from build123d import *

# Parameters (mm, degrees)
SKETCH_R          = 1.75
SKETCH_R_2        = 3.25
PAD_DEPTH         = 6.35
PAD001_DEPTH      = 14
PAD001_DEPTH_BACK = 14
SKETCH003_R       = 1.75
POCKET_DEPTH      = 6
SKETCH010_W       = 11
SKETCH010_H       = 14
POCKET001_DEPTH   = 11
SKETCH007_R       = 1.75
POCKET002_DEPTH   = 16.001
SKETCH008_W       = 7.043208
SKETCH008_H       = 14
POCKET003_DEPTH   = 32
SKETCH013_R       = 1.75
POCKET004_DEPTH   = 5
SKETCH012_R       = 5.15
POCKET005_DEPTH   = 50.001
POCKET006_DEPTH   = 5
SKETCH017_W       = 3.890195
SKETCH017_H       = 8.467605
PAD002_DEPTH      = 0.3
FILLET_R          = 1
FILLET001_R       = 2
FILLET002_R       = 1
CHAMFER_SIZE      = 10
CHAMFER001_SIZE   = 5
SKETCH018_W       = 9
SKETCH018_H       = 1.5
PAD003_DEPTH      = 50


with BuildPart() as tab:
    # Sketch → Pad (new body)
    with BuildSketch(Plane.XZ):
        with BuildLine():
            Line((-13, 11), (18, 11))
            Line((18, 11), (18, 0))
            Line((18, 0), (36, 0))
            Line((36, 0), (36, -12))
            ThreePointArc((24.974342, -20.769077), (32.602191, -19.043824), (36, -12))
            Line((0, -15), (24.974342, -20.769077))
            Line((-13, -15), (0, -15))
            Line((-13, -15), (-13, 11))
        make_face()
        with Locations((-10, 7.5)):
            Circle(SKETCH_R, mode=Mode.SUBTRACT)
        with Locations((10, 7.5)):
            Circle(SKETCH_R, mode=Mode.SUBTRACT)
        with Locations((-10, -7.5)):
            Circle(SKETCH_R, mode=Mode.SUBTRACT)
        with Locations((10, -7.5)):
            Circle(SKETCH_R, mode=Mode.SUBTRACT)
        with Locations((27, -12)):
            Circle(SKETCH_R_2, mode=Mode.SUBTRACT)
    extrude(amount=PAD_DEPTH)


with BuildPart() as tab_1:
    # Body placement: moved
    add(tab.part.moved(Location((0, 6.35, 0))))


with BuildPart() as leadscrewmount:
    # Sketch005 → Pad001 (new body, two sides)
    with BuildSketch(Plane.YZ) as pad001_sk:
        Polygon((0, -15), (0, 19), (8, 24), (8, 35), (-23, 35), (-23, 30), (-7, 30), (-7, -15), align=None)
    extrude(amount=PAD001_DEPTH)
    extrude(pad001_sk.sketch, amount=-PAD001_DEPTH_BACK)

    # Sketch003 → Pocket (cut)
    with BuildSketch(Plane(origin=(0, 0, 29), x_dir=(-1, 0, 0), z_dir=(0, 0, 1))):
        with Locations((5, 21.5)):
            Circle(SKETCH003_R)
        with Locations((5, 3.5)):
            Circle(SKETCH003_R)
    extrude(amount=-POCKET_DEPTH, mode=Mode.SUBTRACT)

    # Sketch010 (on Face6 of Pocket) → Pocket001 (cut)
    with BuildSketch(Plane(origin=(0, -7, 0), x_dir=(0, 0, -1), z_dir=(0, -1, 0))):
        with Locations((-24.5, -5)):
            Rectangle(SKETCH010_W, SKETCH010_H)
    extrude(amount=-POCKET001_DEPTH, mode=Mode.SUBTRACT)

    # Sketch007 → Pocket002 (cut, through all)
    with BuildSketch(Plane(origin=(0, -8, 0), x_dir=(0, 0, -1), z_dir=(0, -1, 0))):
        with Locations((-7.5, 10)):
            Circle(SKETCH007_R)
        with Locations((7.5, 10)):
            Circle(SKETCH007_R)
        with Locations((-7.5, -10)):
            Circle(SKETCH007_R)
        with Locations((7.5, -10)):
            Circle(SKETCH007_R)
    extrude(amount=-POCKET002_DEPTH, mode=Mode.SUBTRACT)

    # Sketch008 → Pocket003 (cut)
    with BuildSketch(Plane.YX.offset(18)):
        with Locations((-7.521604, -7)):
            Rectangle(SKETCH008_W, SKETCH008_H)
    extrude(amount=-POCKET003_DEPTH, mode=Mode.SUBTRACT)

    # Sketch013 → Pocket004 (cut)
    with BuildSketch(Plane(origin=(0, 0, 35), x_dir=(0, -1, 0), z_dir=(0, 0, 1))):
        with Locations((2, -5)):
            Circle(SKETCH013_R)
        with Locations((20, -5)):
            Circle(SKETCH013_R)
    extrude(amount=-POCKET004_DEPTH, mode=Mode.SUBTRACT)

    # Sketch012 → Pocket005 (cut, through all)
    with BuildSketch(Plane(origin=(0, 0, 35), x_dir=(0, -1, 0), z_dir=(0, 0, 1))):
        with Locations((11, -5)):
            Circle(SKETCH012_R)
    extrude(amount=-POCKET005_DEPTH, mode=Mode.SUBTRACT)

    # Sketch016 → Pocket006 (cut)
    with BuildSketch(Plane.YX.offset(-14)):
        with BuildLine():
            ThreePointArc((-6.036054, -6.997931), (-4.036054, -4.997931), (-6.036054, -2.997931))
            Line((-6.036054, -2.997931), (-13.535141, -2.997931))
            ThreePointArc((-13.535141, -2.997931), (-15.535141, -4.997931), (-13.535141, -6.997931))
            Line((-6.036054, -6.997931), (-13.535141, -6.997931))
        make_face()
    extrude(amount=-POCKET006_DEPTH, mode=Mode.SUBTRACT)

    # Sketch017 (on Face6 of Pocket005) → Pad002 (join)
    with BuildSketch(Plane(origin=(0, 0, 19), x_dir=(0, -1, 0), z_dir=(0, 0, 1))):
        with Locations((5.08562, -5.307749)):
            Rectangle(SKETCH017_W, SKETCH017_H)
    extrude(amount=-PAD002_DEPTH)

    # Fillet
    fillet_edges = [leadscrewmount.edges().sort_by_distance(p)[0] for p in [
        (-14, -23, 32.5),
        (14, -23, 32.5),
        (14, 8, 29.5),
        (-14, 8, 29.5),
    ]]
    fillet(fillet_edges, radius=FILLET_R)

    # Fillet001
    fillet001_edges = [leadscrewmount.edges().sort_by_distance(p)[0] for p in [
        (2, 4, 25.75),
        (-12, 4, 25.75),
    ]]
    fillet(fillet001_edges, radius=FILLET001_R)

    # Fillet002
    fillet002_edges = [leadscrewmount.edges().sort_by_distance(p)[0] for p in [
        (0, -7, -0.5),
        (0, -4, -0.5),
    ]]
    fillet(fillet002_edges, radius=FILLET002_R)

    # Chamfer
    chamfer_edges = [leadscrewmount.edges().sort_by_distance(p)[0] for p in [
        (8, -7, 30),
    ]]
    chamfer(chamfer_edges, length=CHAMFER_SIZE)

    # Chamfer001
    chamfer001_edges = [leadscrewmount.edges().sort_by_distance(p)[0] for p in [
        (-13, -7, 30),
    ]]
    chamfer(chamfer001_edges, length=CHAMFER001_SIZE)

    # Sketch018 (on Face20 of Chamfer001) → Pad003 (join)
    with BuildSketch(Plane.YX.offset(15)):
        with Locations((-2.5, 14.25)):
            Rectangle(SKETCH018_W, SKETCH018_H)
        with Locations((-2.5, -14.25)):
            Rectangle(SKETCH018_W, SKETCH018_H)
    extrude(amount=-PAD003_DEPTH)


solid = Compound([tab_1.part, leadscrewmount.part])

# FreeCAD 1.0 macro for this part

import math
import FreeCAD as App
import Part
import Sketcher

V = App.Vector
Q = App.Units.Quantity


def edges_at(feature, points):
    """Names of the edges that pass closest to the given points."""
    edges = feature.Shape.Edges
    near = lambda p: min(range(len(edges)), key=lambda i: edges[i].distToShape(Part.Vertex(*p))[0])
    return sorted({f"Edge{near(p) + 1}" for p in points})


def add_polygon(sketch, points):
    """Adds a closed chain of lines whose ends are joined by coincident constraints."""
    first, n = sketch.GeometryCount, len(points)
    for a, b in zip(points, points[1:] + points[:1]):
        sketch.addGeometry(Part.LineSegment(App.Vector(*a, 0), App.Vector(*b, 0)), False)
    for i in range(n):
        sketch.addConstraint(Sketcher.Constraint("Coincident", first + i, 2, first + (i + 1) % n, 1))

doc = App.newDocument("Part")
body = doc.addObject("PartDesign::Body", "Body")

# Sketch on XZ plane
sketch1 = doc.addObject("Sketcher::SketchObject", "Sketch")
body.addObject(sketch1)
sketch1.AttachmentSupport = (doc.XZ_Plane, [""])
sketch1.MapMode = "FlatFace"
sketch1.addGeometry([
    Part.LineSegment(V(18, 11, 0), V(-13, 11, 0)),  # 0
    Part.LineSegment(V(-13, 11, 0), V(-13, -15, 0)),  # 1
    Part.LineSegment(V(-13, -15, 0), V(0, -15, 0)),  # 2
    Part.LineSegment(V(0, -15, 0), V(25, -20.8, 0)),  # 3
    Part.ArcOfCircle(Part.Circle(V(27, -12, 0), V(0, 0, 1), 9), math.radians(-103), math.radians(0)),  # 4
    Part.LineSegment(V(36, -12, 0), V(36, 0, 0)),  # 5
    Part.LineSegment(V(36, 0, 0), V(18, 0, 0)),  # 6
    Part.LineSegment(V(18, 0, 0), V(18, 11, 0)),  # 7
    Part.Circle(V(27, -12, 0), V(0, 0, 1), 3.2),  # 8
    Part.Circle(V(10, -7.5, 0), V(0, 0, 1), 1.8),  # 9
    Part.Circle(V(-10, -7.5, 0), V(0, 0, 1), 1.8),  # 10
    Part.Circle(V(10, 7.5, 0), V(0, 0, 1), 1.8),  # 11
    Part.Circle(V(-10, 7.5, 0), V(0, 0, 1), 1.8),  # 12
], False)
sketch1.addConstraint([
    Sketcher.Constraint("Coincident", 0, 2, 1, 1),
    Sketcher.Constraint("Coincident", 1, 2, 2, 1),
    Sketcher.Constraint("Coincident", 2, 2, 3, 1),
    Sketcher.Constraint("Tangent", 3, 2, 4, 1),
    Sketcher.Constraint("Tangent", 4, 2, 5, 1),
    Sketcher.Constraint("Coincident", 5, 2, 6, 1),
    Sketcher.Constraint("Coincident", 6, 2, 7, 1),
    Sketcher.Constraint("Coincident", 7, 2, 0, 1),
    Sketcher.Constraint("Horizontal", 0),
    Sketcher.Constraint("Vertical", 1),
    Sketcher.Constraint("Horizontal", 2),
    Sketcher.Constraint("Vertical", 5),
    Sketcher.Constraint("Horizontal", 6),
    Sketcher.Constraint("Vertical", 7),
    Sketcher.Constraint("Coincident", 8, 3, 4, 3),
    Sketcher.Constraint("Equal", 9, 10),
    Sketcher.Constraint("Equal", 10, 11),
    Sketcher.Constraint("Equal", 11, 12),
    Sketcher.Constraint("Symmetric", 10, 3, 11, 3, -1, 1),
    Sketcher.Constraint("Symmetric", 9, 3, 12, 3, -1, 1),
    Sketcher.Constraint("Symmetric", 9, 3, 10, 3, -2),
    Sketcher.Constraint("PointOnObject", 2, 2, -2),
    Sketcher.Constraint("PointOnObject", 5, 2, -1),
    Sketcher.Constraint("Radius", 4, Q("9 mm")),
    Sketcher.Constraint("Diameter", 8, Q("6.5 mm")),
    Sketcher.Constraint("Diameter", 9, Q("3.5 mm")),
    Sketcher.Constraint("DistanceX", 0, 2, 0, 1, Q("31 mm")),
    Sketcher.Constraint("DistanceX", 2, 1, 2, 2, Q("13 mm")),
    Sketcher.Constraint("DistanceX", 6, 2, 6, 1, Q("18 mm")),
    Sketcher.Constraint("DistanceY", 1, 2, 1, 1, Q("26 mm")),
    Sketcher.Constraint("DistanceY", 5, 1, 5, 2, Q("12 mm")),
    Sketcher.Constraint("DistanceY", 7, 1, 7, 2, Q("11 mm")),
    Sketcher.Constraint("DistanceX", -1, 1, 9, 3, Q("10 mm")),
    Sketcher.Constraint("DistanceY", 9, 3, 11, 3, Q("15 mm")),
])
pad1 = doc.addObject("PartDesign::Pad", "Pad")
body.addObject(pad1)
pad1.Profile = sketch1
pad1.Length = 6.35
body2 = doc.addObject("PartDesign::Body", "Body001")
doc.recompute()

body.Placement = App.Placement(V(0, 6.35, 0), App.Rotation(V(0, 0, 1), 0))
boolean = doc.addObject("PartDesign::Boolean", "Boolean")
body2.addObject(boolean)
boolean.Type = "Fuse"
boolean.addObjects([body])
body3 = doc.addObject("PartDesign::Body", "Body002")

# Sketch on YZ plane
sketch2 = doc.addObject("Sketcher::SketchObject", "Sketch001")
body3.addObject(sketch2)
sketch2.AttachmentSupport = (doc.getObject("YZ_Plane002"), [""])
sketch2.MapMode = "FlatFace"
add_polygon(sketch2, [(0, -15), (0, 19), (8, 24), (8, 35), (-23, 35), (-23, 30), (-7, 30), (-7, -15)])  # lines 0-7
sketch2.addConstraint([
    Sketcher.Constraint("Vertical", 0),
    Sketcher.Constraint("Vertical", 2),
    Sketcher.Constraint("Horizontal", 3),
    Sketcher.Constraint("Vertical", 4),
    Sketcher.Constraint("Horizontal", 5),
    Sketcher.Constraint("Vertical", 6),
    Sketcher.Constraint("Horizontal", 7),
    Sketcher.Constraint("PointOnObject", 0, 2, -2),
    Sketcher.Constraint("DistanceX", 3, 2, 3, 1, Q("31 mm")),
    Sketcher.Constraint("DistanceX", 5, 1, 5, 2, Q("16 mm")),
    Sketcher.Constraint("DistanceX", 7, 1, 7, 2, Q("7 mm")),
    Sketcher.Constraint("DistanceY", 0, 1, 0, 2, Q("34 mm")),
    Sketcher.Constraint("DistanceY", 2, 1, 2, 2, Q("11 mm")),
    Sketcher.Constraint("DistanceY", 4, 2, 4, 1, Q("5 mm")),
    Sketcher.Constraint("DistanceY", 6, 2, 6, 1, Q("45 mm")),
    Sketcher.Constraint("DistanceY", -1, 1, 0, 2, Q("19 mm")),
])
pad2 = doc.addObject("PartDesign::Pad", "Pad001")
body3.addObject(pad2)
pad2.Profile = sketch2
pad2.Type = "TwoLengths"
pad2.Length = 14
pad2.Length2 = 14

# Sketch on XY plane
sketch3 = doc.addObject("Sketcher::SketchObject", "Sketch002")
body3.addObject(sketch3)
sketch3.AttachmentSupport = (doc.getObject("XY_Plane002"), [""])
sketch3.MapMode = "FlatFace"
sketch3.AttachmentOffset = App.Placement(V(0, 0, 29), App.Rotation())
sketch3.addGeometry([
    Part.Circle(V(-5, -21.5, 0), V(0, 0, 1), 1.8),
    Part.Circle(V(-5, -3.5, 0), V(0, 0, 1), 1.8),
], False)
sketch3.addConstraint([
    Sketcher.Constraint("Equal", 0, 1),
    Sketcher.Constraint("Vertical", 0, 3, 1, 3),
    Sketcher.Constraint("Diameter", 0, Q("3.5 mm")),
    Sketcher.Constraint("DistanceX", 0, 3, -1, 1, Q("5 mm")),
    Sketcher.Constraint("DistanceY", 0, 3, 1, 3, Q("18 mm")),
    Sketcher.Constraint("DistanceY", 0, 3, -1, 1, Q("21.5 mm")),
])
pocket1 = doc.addObject("PartDesign::Pocket", "Pocket")
body3.addObject(pocket1)
pocket1.Profile = sketch3
pocket1.Length = 6

# Sketch on XZ plane
sketch4 = doc.addObject("Sketcher::SketchObject", "Sketch003")
body3.addObject(sketch4)
sketch4.AttachmentSupport = (doc.getObject("XZ_Plane002"), [""])
sketch4.MapMode = "FlatFace"
sketch4.AttachmentOffset = App.Placement(V(0, 0, 7), App.Rotation())
add_polygon(sketch4, [(2, 30), (-12, 30), (-12, 19), (2, 19)])  # lines 0-3
sketch4.addConstraint([
    Sketcher.Constraint("Horizontal", 0),
    Sketcher.Constraint("Vertical", 1),
    Sketcher.Constraint("Horizontal", 2),
    Sketcher.Constraint("Vertical", 3),
    Sketcher.Constraint("DistanceX", 0, 2, 0, 1, Q("14 mm")),
    Sketcher.Constraint("DistanceY", 1, 2, 1, 1, Q("11 mm")),
    Sketcher.Constraint("DistanceX", 0, 2, -1, 1, Q("12 mm")),
    Sketcher.Constraint("DistanceY", -1, 1, 0, 2, Q("30 mm")),
])
pocket2 = doc.addObject("PartDesign::Pocket", "Pocket001")
body3.addObject(pocket2)
pocket2.Profile = sketch4
pocket2.Length = 11

# Sketch on XZ plane
sketch5 = doc.addObject("Sketcher::SketchObject", "Sketch004")
body3.addObject(sketch5)
sketch5.AttachmentSupport = (doc.getObject("XZ_Plane002"), [""])
sketch5.MapMode = "FlatFace"
sketch5.AttachmentOffset = App.Placement(V(0, 0, 8), App.Rotation())
sketch5.addGeometry([
    Part.Circle(V(10, 7.5, 0), V(0, 0, 1), 1.8),
    Part.Circle(V(10, -7.5, 0), V(0, 0, 1), 1.8),
    Part.Circle(V(-10, 7.5, 0), V(0, 0, 1), 1.8),
    Part.Circle(V(-10, -7.5, 0), V(0, 0, 1), 1.8),
], False)
sketch5.addConstraint([
    Sketcher.Constraint("Equal", 0, 1),
    Sketcher.Constraint("Equal", 1, 2),
    Sketcher.Constraint("Equal", 2, 3),
    Sketcher.Constraint("Symmetric", 1, 3, 2, 3, -1, 1),
    Sketcher.Constraint("Symmetric", 0, 3, 3, 3, -1, 1),
    Sketcher.Constraint("Symmetric", 0, 3, 2, 3, -2),
    Sketcher.Constraint("Diameter", 0, Q("3.5 mm")),
    Sketcher.Constraint("DistanceX", -1, 1, 0, 3, Q("10 mm")),
    Sketcher.Constraint("DistanceY", 1, 3, 0, 3, Q("15 mm")),
])
pocket3 = doc.addObject("PartDesign::Pocket", "Pocket002")
body3.addObject(pocket3)
pocket3.Profile = sketch5
pocket3.Type = "ThroughAll"

# Sketch on XY plane
sketch6 = doc.addObject("Sketcher::SketchObject", "Sketch005")
body3.addObject(sketch6)
sketch6.AttachmentSupport = (doc.getObject("XY_Plane002"), [""])
sketch6.MapMode = "FlatFace"
sketch6.AttachmentOffset = App.Placement(V(0, 0, -18), App.Rotation())
add_polygon(sketch6, [(0, -11), (-14, -11), (-14, -4), (0, -4)])  # lines 0-3
sketch6.addConstraint([
    Sketcher.Constraint("Horizontal", 0),
    Sketcher.Constraint("Vertical", 1),
    Sketcher.Constraint("Horizontal", 2),
    Sketcher.Constraint("Vertical", 3),
    Sketcher.Constraint("PointOnObject", 2, 2, -2),
    Sketcher.Constraint("DistanceX", 0, 2, 0, 1, Q("14 mm")),
    Sketcher.Constraint("DistanceY", 1, 2, -1, 1, Q("4 mm")),
    Sketcher.Constraint("DistanceY", 1, 1, 1, 2, Q("7.043208 mm")),
])
pocket4 = doc.addObject("PartDesign::Pocket", "Pocket003")
body3.addObject(pocket4)
pocket4.Profile = sketch6
pocket4.Length = 32
pocket4.Reversed = True

# Sketch on XY plane
sketch7 = doc.addObject("Sketcher::SketchObject", "Sketch006")
body3.addObject(sketch7)
sketch7.AttachmentSupport = (doc.getObject("XY_Plane002"), [""])
sketch7.MapMode = "FlatFace"
sketch7.AttachmentOffset = App.Placement(V(0, 0, 35), App.Rotation())
sketch7.addGeometry([
    Part.Circle(V(-5, -2, 0), V(0, 0, 1), 1.8),
    Part.Circle(V(-5, -20, 0), V(0, 0, 1), 1.8),
], False)
sketch7.addConstraint([
    Sketcher.Constraint("Equal", 0, 1),
    Sketcher.Constraint("Vertical", 0, 3, 1, 3),
    Sketcher.Constraint("Diameter", 0, Q("3.5 mm")),
    Sketcher.Constraint("DistanceX", 0, 3, -1, 1, Q("5 mm")),
    Sketcher.Constraint("DistanceY", 0, 3, -1, 1, Q("2 mm")),
    Sketcher.Constraint("DistanceY", 1, 3, -1, 1, Q("20 mm")),
])
pocket5 = doc.addObject("PartDesign::Pocket", "Pocket004")
body3.addObject(pocket5)
pocket5.Profile = sketch7
pocket5.Length = 5

# Sketch on XY plane
sketch8 = doc.addObject("Sketcher::SketchObject", "Sketch007")
body3.addObject(sketch8)
sketch8.AttachmentSupport = (doc.getObject("XY_Plane002"), [""])
sketch8.MapMode = "FlatFace"
sketch8.AttachmentOffset = App.Placement(V(0, 0, 35), App.Rotation())
sketch8.addGeometry(Part.Circle(V(-5, -11, 0), V(0, 0, 1), 5), False)
sketch8.addConstraint([
    Sketcher.Constraint("Diameter", 0, Q("10.3 mm")),
    Sketcher.Constraint("DistanceX", 0, 3, -1, 1, Q("5 mm")),
    Sketcher.Constraint("DistanceY", 0, 3, -1, 1, Q("11 mm")),
])
pocket6 = doc.addObject("PartDesign::Pocket", "Pocket005")
body3.addObject(pocket6)
pocket6.Profile = sketch8
pocket6.Type = "ThroughAll"

# Sketch on XY plane
sketch9 = doc.addObject("Sketcher::SketchObject", "Sketch008")
body3.addObject(sketch9)
sketch9.AttachmentSupport = (doc.getObject("XY_Plane002"), [""])
sketch9.MapMode = "FlatFace"
sketch9.AttachmentOffset = App.Placement(V(0, 0, 14), App.Rotation())
sketch9.addGeometry([
    Part.ArcOfCircle(Part.Circle(V(-5, -6, 0), V(0, 0, 1), 2), math.radians(0), math.radians(180)),
    Part.LineSegment(V(-3, -6, 0), V(-3, -13.5, 0)),
    Part.ArcOfCircle(Part.Circle(V(-5, -13.5, 0), V(0, 0, 1), 2), math.radians(180), math.radians(360)),
    Part.LineSegment(V(-7, -13.5, 0), V(-7, -6, 0)),
], False)
sketch9.addConstraint([
    Sketcher.Constraint("Tangent", 0, 1, 1, 1),
    Sketcher.Constraint("Tangent", 1, 2, 2, 2),
    Sketcher.Constraint("Tangent", 2, 1, 3, 1),
    Sketcher.Constraint("Tangent", 3, 2, 0, 2),
    Sketcher.Constraint("Vertical", 1),
    Sketcher.Constraint("Vertical", 3),
    Sketcher.Constraint("Radius", 0, Q("2 mm")),
    Sketcher.Constraint("DistanceY", 1, 2, 1, 1, Q("7.499087 mm")),
    Sketcher.Constraint("DistanceX", 0, 3, -1, 1, Q("4.997931 mm")),
    Sketcher.Constraint("DistanceY", 2, 3, -1, 1, Q("13.535141 mm")),
])
pocket7 = doc.addObject("PartDesign::Pocket", "Pocket006")
body3.addObject(pocket7)
pocket7.Profile = sketch9
pocket7.Length = 5
pocket7.Reversed = True

# Sketch on XY plane
sketch10 = doc.addObject("Sketcher::SketchObject", "Sketch009")
body3.addObject(sketch10)
sketch10.AttachmentSupport = (doc.getObject("XY_Plane002"), [""])
sketch10.MapMode = "FlatFace"
sketch10.AttachmentOffset = App.Placement(V(0, 0, 19), App.Rotation())
add_polygon(sketch10, [(-1.1, -3.1), (-9.5, -3.1), (-9.5, -7), (-1.1, -7)])  # lines 0-3
sketch10.addConstraint([
    Sketcher.Constraint("Horizontal", 0),
    Sketcher.Constraint("Vertical", 1),
    Sketcher.Constraint("Horizontal", 2),
    Sketcher.Constraint("Vertical", 3),
    Sketcher.Constraint("DistanceX", 0, 2, 0, 1, Q("8.467605 mm")),
    Sketcher.Constraint("DistanceY", 1, 2, 1, 1, Q("3.890195 mm")),
    Sketcher.Constraint("DistanceX", 0, 2, -1, 1, Q("9.541552 mm")),
    Sketcher.Constraint("DistanceY", 0, 2, -1, 1, Q("3.140522 mm")),
])
pad3 = doc.addObject("PartDesign::Pad", "Pad002")
body3.addObject(pad3)
pad3.Profile = sketch10
pad3.Length = 0.3
pad3.Reversed = True
doc.recompute()

fillet = doc.addObject("PartDesign::Fillet", "Fillet")
body3.addObject(fillet)
fillet.Base = (pad3, edges_at(pad3, [
    (-14, -23, 32.5),
    (14, -23, 32.5),
    (14, 8, 29.5),
    (-14, 8, 29.5),
]))
fillet.Radius = 1
doc.recompute()

fillet2 = doc.addObject("PartDesign::Fillet", "Fillet001")
body3.addObject(fillet2)
fillet2.Base = (fillet, edges_at(fillet, [(2, 4, 25.75), (-12, 4, 25.75)]))
fillet2.Radius = 2
doc.recompute()

fillet3 = doc.addObject("PartDesign::Fillet", "Fillet002")
body3.addObject(fillet3)
fillet3.Base = (fillet2, edges_at(fillet2, [(0, -7, -0.5), (0, -4, -0.5)]))
fillet3.Radius = 1
doc.recompute()

chamfer = doc.addObject("PartDesign::Chamfer", "Chamfer")
body3.addObject(chamfer)
chamfer.Base = (fillet3, edges_at(fillet3, [(8, -7, 30)]))
chamfer.Size = 10
doc.recompute()

chamfer2 = doc.addObject("PartDesign::Chamfer", "Chamfer001")
body3.addObject(chamfer2)
chamfer2.Base = (chamfer, edges_at(chamfer, [(-13, -7, 30)]))
chamfer2.Size = 5

# Sketch on XY plane
sketch11 = doc.addObject("Sketcher::SketchObject", "Sketch010")
body3.addObject(sketch11)
sketch11.AttachmentSupport = (doc.getObject("XY_Plane002"), [""])
sketch11.MapMode = "FlatFace"
sketch11.AttachmentOffset = App.Placement(V(0, 0, -15), App.Rotation())
add_polygon(sketch11, [(15, -7), (13.5, -7), (13.5, 2), (15, 2)])  # lines 0-3
add_polygon(sketch11, [(-13.5, -7), (-15, -7), (-15, 2), (-13.5, 2)])  # lines 4-7
sketch11.addConstraint([
    Sketcher.Constraint("Horizontal", 0),
    Sketcher.Constraint("Vertical", 1),
    Sketcher.Constraint("Horizontal", 2),
    Sketcher.Constraint("Vertical", 3),
    Sketcher.Constraint("Horizontal", 4),
    Sketcher.Constraint("Vertical", 5),
    Sketcher.Constraint("Horizontal", 6),
    Sketcher.Constraint("Vertical", 7),
    Sketcher.Constraint("Symmetric", 3, 2, 4, 2, -2),
    Sketcher.Constraint("Symmetric", 1, 2, 6, 2, -2),
    Sketcher.Constraint("DistanceY", 1, 1, 1, 2, Q("9 mm")),
    Sketcher.Constraint("DistanceX", 0, 2, 0, 1, Q("1.5 mm")),
    Sketcher.Constraint("DistanceY", 0, 2, -1, 1, Q("7 mm")),
    Sketcher.Constraint("DistanceX", -1, 1, 2, 2, Q("15 mm")),
])
pad4 = doc.addObject("PartDesign::Pad", "Pad003")
body3.addObject(pad4)
pad4.Profile = sketch11
pad4.Length = 50

doc.recompute()
